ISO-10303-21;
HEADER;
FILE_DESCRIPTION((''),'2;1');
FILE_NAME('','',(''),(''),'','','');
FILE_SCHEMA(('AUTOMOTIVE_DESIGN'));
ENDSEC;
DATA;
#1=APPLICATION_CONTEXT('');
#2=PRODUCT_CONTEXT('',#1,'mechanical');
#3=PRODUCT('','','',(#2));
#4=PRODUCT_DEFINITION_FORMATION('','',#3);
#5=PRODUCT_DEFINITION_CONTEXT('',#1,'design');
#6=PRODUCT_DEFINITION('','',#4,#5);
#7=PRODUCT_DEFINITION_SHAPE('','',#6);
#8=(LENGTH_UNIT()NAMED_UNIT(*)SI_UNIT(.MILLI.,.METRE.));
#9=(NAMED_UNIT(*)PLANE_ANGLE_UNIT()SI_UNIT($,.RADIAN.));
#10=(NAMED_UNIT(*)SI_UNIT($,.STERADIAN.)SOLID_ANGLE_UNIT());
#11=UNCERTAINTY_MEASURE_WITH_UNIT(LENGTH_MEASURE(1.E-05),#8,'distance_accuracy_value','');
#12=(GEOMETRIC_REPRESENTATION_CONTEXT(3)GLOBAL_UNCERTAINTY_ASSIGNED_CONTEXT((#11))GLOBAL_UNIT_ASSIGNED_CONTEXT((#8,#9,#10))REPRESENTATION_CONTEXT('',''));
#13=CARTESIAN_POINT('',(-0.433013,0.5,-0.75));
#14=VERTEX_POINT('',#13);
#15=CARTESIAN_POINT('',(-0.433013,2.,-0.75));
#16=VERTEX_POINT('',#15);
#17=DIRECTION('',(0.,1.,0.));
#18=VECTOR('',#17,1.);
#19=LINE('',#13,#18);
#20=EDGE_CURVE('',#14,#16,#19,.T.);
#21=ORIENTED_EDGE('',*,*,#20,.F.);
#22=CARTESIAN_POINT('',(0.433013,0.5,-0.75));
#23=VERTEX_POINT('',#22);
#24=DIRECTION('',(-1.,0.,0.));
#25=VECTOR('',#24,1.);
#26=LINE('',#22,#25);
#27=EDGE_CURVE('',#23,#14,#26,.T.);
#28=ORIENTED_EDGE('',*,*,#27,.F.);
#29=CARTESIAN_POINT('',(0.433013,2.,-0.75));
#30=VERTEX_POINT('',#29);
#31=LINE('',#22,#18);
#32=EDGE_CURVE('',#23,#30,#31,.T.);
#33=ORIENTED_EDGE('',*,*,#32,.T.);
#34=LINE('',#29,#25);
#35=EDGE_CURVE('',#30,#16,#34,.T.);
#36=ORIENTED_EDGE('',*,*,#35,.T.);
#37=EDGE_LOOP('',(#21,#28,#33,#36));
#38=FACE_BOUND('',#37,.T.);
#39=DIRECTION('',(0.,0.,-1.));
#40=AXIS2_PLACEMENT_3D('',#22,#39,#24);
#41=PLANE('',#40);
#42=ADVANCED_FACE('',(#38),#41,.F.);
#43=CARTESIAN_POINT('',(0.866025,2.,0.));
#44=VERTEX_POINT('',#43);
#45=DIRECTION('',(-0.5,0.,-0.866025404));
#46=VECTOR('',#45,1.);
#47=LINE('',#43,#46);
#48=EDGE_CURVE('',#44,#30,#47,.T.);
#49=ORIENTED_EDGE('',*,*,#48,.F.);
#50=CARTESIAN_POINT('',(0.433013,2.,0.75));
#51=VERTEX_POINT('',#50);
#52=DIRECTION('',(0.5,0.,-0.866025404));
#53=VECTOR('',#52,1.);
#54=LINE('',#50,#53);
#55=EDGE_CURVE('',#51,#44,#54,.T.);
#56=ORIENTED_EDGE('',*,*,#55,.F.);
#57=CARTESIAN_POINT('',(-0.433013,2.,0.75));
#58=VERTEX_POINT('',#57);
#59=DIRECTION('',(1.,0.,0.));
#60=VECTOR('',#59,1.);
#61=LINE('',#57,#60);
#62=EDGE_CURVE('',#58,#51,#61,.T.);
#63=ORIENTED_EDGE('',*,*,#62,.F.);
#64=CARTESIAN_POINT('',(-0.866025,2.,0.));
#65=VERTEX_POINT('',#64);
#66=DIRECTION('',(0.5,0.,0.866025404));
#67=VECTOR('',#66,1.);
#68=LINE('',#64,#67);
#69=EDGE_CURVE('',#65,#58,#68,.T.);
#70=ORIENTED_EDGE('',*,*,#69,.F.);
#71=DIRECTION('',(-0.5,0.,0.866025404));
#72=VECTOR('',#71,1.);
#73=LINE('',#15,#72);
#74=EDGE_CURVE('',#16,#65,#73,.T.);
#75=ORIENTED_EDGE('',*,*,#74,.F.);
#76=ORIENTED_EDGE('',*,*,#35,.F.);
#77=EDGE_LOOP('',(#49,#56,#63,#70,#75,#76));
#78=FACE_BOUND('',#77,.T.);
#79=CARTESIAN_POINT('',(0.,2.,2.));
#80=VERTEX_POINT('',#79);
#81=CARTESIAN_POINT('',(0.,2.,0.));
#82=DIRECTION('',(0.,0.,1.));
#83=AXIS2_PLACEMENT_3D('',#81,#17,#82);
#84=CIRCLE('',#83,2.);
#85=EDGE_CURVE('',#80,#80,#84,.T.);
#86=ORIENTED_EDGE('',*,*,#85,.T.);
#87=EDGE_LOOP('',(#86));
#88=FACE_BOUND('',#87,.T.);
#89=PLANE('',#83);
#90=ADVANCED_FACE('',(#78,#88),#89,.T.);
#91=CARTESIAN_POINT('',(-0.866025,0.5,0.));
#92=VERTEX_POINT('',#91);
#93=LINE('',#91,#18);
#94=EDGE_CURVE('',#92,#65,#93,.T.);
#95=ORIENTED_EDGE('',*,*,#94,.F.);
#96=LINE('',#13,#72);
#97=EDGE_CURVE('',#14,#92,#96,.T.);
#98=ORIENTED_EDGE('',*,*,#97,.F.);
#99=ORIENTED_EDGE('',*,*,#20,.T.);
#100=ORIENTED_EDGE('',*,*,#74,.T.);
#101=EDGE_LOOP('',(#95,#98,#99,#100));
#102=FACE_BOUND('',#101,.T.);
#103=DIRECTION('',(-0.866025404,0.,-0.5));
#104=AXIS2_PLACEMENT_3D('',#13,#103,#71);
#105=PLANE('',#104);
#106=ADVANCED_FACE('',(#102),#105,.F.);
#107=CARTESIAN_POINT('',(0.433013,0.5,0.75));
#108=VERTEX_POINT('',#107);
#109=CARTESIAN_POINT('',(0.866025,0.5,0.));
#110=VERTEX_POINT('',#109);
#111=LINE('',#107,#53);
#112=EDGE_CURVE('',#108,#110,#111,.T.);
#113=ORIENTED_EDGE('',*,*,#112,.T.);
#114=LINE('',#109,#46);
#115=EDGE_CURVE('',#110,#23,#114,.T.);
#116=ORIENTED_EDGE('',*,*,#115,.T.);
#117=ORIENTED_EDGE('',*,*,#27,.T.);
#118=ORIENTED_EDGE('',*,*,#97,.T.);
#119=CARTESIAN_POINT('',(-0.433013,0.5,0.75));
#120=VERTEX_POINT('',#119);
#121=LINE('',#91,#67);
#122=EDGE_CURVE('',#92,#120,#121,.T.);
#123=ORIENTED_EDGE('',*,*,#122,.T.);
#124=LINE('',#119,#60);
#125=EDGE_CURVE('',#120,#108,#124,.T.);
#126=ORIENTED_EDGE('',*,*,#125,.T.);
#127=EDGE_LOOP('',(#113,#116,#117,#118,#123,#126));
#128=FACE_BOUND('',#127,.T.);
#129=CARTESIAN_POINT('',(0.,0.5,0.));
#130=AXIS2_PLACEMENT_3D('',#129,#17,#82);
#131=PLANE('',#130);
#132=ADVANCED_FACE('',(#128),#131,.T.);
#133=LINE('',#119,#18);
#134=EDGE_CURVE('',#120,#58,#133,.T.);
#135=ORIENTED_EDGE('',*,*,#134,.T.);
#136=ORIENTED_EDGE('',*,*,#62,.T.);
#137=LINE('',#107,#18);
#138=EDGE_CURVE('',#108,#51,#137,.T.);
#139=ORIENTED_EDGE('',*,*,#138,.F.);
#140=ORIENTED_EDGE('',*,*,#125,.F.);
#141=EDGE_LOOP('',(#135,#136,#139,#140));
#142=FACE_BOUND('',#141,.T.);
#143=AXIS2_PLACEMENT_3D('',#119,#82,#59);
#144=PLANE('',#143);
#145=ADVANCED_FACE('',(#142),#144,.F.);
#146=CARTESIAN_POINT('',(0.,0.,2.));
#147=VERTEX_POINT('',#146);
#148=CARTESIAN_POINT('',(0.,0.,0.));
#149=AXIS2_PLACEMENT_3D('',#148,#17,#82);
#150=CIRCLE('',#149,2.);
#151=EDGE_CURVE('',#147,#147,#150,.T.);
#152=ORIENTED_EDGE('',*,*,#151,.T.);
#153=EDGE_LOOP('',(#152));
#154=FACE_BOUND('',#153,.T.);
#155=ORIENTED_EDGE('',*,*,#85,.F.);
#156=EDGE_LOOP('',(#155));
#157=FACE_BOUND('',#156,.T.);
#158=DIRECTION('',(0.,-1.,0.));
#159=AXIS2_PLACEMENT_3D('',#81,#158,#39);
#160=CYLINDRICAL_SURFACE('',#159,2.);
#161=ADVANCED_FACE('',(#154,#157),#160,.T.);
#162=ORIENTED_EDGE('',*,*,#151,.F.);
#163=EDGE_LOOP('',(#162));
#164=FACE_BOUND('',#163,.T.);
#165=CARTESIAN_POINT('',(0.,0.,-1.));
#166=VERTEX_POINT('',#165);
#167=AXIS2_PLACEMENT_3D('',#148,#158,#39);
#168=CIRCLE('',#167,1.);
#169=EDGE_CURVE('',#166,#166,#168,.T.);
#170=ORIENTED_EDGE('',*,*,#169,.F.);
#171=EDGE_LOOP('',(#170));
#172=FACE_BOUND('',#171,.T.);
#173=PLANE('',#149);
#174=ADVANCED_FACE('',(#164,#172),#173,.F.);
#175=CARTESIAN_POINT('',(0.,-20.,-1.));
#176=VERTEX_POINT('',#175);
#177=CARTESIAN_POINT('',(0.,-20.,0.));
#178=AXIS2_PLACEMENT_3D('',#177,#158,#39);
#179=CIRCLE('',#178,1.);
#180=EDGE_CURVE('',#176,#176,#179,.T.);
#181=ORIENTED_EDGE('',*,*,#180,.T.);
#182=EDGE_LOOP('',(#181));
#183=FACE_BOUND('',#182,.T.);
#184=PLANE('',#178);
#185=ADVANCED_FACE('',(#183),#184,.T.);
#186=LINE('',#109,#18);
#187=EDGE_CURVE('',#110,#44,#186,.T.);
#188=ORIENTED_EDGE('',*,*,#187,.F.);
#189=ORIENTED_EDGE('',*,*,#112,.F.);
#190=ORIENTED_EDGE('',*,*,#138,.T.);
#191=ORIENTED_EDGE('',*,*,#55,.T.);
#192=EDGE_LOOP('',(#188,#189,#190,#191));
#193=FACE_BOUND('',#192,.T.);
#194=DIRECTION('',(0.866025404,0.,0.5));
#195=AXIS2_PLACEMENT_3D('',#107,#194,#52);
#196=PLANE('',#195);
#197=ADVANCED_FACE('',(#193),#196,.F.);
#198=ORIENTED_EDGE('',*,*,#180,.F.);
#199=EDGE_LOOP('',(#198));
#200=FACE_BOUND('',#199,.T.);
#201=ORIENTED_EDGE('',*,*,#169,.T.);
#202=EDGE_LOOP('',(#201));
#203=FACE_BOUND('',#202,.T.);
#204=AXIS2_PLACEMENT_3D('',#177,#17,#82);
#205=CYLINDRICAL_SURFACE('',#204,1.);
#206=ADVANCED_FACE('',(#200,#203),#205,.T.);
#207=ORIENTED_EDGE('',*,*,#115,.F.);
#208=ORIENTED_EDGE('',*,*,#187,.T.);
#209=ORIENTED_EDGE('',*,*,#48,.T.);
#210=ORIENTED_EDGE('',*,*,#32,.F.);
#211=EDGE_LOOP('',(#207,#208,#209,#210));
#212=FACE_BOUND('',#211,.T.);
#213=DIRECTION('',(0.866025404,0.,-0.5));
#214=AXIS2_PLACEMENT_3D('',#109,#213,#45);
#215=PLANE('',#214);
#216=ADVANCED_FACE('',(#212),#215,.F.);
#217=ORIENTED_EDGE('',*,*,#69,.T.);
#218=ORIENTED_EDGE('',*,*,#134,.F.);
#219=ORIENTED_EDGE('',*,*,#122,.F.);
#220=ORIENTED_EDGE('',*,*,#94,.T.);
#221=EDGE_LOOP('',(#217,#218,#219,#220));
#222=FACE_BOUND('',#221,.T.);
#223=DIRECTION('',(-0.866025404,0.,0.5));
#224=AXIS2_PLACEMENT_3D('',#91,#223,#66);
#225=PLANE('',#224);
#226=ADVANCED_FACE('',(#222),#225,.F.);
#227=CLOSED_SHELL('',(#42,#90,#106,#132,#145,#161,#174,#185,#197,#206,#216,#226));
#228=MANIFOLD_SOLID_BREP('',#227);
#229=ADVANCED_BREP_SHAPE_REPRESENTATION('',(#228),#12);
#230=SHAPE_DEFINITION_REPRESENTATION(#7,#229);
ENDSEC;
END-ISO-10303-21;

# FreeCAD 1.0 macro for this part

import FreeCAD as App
import Part
import Sketcher
Q = App.Units.Quantity


def add_polygon(sketch, points):
    """Adds a closed chain of lines whose ends are joined by coincident constraints."""
    first, n = sketch.GeometryCount, len(points)
    for a, b in zip(points, points[1:] + points[:1]):
        sketch.addGeometry(Part.LineSegment(App.Vector(*a, 0), App.Vector(*b, 0)), False)
    for i in range(n):
        sketch.addConstraint(Sketcher.Constraint("Coincident", first + i, 2, first + (i + 1) % n, 1))

doc = App.newDocument("Part")
body = doc.addObject("PartDesign::Body", "Body")

sketch1 = body.newObject("Sketcher::SketchObject", "Sketch")
sketch1.AttachmentSupport = (doc.getObject("XZ_Plane"), [""])
sketch1.MapMode = "FlatFace"
sketch1.addGeometry(Part.Circle(App.Vector(0, 0, 0), App.Vector(0, 0, 1), 2), False)
sketch1.addConstraint([
    Sketcher.Constraint("Coincident", 0, 3, -1, 1),
    Sketcher.Constraint("Diameter", 0, Q("4 mm")),
])
pad1 = body.newObject("PartDesign::Pad", "Pad")
pad1.Profile = sketch1
pad1.Length = 2
pad1.Reversed = True

sketch2 = body.newObject("Sketcher::SketchObject", "Sketch001")
sketch2.AttachmentSupport = (doc.getObject("XZ_Plane"), [""])
sketch2.MapMode = "FlatFace"
sketch2.AttachmentOffset = App.Placement(App.Vector(0, 0, -2), App.Rotation())
add_polygon(sketch2, [(0.9, 0), (0.4, -0.8), (-0.4, -0.8), (-0.9, 0), (-0.4, 0.8), (0.4, 0.8)])
sketch2.addConstraint([
    Sketcher.Constraint("Horizontal", 1),
    Sketcher.Constraint("Horizontal", 4),
    Sketcher.Constraint("Symmetric", 0, 2, 3, 2, -1, 1),
    Sketcher.Constraint("Symmetric", 2, 2, 5, 2, -1, 1),
    Sketcher.Constraint("PointOnObject", 2, 2, -1),
    Sketcher.Constraint("Parallel", 2, 5),
    Sketcher.Constraint("Vertical", 1, 2, 3, 2),
    Sketcher.Constraint("Angle", 0, Q("-120 deg")),
    Sketcher.Constraint("DistanceY", 1, 2, 3, 2, Q("1.5 mm")),
    Sketcher.Constraint("DistanceX", 1, 2, 1, 1, Q("0.866025 mm")),
])
pocket1 = body.newObject("PartDesign::Pocket", "Pocket")
pocket1.Profile = sketch2
pocket1.Length = 1.5
pocket1.Reversed = True

sketch3 = body.newObject("Sketcher::SketchObject", "Sketch002")
sketch3.AttachmentSupport = (doc.getObject("XZ_Plane"), [""])
sketch3.MapMode = "FlatFace"
sketch3.addGeometry(Part.Circle(App.Vector(0, 0, 0), App.Vector(0, 0, 1), 1), False)
sketch3.addConstraint([
    Sketcher.Constraint("Coincident", 0, 3, -1, 1),
    Sketcher.Constraint("Diameter", 0, Q("2 mm")),
])
pad2 = body.newObject("PartDesign::Pad", "Pad001")
pad2.Profile = sketch3
pad2.Length = 20

doc.recompute()
